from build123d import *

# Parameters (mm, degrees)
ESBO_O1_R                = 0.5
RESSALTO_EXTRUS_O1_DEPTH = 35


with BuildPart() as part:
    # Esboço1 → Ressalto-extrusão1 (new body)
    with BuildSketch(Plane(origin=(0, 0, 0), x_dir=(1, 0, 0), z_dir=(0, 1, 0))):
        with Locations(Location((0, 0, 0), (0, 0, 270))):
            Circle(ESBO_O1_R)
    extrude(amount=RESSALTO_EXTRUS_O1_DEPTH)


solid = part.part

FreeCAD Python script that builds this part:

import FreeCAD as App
import Part
import Sketcher
from FreeCAD import Vector
Q = App.Units.Quantity

doc = App.newDocument("Part")
body = doc.addObject("PartDesign::Body", "Body")

# Sketch on XZ plane
sketch1 = body.newObject("Sketcher::SketchObject", "Sketch")
sketch1.AttachmentSupport = (doc.getObject("XZ_Plane"), [""])
sketch1.MapMode = "FlatFace"
sketch1.addGeometry(Part.Circle(Vector(0, 0, 0), Vector(0, 0, 1), 0.5), False)
sketch1.addConstraint([
    Sketcher.Constraint("Coincident", 0, 3, -1, 1),
    Sketcher.Constraint("Diameter", 0, Q("1 mm")),
])
pad1 = body.newObject("PartDesign::Pad", "Pad")
pad1.Profile = sketch1
pad1.Length = 35
pad1.Reversed = True

doc.recompute()
